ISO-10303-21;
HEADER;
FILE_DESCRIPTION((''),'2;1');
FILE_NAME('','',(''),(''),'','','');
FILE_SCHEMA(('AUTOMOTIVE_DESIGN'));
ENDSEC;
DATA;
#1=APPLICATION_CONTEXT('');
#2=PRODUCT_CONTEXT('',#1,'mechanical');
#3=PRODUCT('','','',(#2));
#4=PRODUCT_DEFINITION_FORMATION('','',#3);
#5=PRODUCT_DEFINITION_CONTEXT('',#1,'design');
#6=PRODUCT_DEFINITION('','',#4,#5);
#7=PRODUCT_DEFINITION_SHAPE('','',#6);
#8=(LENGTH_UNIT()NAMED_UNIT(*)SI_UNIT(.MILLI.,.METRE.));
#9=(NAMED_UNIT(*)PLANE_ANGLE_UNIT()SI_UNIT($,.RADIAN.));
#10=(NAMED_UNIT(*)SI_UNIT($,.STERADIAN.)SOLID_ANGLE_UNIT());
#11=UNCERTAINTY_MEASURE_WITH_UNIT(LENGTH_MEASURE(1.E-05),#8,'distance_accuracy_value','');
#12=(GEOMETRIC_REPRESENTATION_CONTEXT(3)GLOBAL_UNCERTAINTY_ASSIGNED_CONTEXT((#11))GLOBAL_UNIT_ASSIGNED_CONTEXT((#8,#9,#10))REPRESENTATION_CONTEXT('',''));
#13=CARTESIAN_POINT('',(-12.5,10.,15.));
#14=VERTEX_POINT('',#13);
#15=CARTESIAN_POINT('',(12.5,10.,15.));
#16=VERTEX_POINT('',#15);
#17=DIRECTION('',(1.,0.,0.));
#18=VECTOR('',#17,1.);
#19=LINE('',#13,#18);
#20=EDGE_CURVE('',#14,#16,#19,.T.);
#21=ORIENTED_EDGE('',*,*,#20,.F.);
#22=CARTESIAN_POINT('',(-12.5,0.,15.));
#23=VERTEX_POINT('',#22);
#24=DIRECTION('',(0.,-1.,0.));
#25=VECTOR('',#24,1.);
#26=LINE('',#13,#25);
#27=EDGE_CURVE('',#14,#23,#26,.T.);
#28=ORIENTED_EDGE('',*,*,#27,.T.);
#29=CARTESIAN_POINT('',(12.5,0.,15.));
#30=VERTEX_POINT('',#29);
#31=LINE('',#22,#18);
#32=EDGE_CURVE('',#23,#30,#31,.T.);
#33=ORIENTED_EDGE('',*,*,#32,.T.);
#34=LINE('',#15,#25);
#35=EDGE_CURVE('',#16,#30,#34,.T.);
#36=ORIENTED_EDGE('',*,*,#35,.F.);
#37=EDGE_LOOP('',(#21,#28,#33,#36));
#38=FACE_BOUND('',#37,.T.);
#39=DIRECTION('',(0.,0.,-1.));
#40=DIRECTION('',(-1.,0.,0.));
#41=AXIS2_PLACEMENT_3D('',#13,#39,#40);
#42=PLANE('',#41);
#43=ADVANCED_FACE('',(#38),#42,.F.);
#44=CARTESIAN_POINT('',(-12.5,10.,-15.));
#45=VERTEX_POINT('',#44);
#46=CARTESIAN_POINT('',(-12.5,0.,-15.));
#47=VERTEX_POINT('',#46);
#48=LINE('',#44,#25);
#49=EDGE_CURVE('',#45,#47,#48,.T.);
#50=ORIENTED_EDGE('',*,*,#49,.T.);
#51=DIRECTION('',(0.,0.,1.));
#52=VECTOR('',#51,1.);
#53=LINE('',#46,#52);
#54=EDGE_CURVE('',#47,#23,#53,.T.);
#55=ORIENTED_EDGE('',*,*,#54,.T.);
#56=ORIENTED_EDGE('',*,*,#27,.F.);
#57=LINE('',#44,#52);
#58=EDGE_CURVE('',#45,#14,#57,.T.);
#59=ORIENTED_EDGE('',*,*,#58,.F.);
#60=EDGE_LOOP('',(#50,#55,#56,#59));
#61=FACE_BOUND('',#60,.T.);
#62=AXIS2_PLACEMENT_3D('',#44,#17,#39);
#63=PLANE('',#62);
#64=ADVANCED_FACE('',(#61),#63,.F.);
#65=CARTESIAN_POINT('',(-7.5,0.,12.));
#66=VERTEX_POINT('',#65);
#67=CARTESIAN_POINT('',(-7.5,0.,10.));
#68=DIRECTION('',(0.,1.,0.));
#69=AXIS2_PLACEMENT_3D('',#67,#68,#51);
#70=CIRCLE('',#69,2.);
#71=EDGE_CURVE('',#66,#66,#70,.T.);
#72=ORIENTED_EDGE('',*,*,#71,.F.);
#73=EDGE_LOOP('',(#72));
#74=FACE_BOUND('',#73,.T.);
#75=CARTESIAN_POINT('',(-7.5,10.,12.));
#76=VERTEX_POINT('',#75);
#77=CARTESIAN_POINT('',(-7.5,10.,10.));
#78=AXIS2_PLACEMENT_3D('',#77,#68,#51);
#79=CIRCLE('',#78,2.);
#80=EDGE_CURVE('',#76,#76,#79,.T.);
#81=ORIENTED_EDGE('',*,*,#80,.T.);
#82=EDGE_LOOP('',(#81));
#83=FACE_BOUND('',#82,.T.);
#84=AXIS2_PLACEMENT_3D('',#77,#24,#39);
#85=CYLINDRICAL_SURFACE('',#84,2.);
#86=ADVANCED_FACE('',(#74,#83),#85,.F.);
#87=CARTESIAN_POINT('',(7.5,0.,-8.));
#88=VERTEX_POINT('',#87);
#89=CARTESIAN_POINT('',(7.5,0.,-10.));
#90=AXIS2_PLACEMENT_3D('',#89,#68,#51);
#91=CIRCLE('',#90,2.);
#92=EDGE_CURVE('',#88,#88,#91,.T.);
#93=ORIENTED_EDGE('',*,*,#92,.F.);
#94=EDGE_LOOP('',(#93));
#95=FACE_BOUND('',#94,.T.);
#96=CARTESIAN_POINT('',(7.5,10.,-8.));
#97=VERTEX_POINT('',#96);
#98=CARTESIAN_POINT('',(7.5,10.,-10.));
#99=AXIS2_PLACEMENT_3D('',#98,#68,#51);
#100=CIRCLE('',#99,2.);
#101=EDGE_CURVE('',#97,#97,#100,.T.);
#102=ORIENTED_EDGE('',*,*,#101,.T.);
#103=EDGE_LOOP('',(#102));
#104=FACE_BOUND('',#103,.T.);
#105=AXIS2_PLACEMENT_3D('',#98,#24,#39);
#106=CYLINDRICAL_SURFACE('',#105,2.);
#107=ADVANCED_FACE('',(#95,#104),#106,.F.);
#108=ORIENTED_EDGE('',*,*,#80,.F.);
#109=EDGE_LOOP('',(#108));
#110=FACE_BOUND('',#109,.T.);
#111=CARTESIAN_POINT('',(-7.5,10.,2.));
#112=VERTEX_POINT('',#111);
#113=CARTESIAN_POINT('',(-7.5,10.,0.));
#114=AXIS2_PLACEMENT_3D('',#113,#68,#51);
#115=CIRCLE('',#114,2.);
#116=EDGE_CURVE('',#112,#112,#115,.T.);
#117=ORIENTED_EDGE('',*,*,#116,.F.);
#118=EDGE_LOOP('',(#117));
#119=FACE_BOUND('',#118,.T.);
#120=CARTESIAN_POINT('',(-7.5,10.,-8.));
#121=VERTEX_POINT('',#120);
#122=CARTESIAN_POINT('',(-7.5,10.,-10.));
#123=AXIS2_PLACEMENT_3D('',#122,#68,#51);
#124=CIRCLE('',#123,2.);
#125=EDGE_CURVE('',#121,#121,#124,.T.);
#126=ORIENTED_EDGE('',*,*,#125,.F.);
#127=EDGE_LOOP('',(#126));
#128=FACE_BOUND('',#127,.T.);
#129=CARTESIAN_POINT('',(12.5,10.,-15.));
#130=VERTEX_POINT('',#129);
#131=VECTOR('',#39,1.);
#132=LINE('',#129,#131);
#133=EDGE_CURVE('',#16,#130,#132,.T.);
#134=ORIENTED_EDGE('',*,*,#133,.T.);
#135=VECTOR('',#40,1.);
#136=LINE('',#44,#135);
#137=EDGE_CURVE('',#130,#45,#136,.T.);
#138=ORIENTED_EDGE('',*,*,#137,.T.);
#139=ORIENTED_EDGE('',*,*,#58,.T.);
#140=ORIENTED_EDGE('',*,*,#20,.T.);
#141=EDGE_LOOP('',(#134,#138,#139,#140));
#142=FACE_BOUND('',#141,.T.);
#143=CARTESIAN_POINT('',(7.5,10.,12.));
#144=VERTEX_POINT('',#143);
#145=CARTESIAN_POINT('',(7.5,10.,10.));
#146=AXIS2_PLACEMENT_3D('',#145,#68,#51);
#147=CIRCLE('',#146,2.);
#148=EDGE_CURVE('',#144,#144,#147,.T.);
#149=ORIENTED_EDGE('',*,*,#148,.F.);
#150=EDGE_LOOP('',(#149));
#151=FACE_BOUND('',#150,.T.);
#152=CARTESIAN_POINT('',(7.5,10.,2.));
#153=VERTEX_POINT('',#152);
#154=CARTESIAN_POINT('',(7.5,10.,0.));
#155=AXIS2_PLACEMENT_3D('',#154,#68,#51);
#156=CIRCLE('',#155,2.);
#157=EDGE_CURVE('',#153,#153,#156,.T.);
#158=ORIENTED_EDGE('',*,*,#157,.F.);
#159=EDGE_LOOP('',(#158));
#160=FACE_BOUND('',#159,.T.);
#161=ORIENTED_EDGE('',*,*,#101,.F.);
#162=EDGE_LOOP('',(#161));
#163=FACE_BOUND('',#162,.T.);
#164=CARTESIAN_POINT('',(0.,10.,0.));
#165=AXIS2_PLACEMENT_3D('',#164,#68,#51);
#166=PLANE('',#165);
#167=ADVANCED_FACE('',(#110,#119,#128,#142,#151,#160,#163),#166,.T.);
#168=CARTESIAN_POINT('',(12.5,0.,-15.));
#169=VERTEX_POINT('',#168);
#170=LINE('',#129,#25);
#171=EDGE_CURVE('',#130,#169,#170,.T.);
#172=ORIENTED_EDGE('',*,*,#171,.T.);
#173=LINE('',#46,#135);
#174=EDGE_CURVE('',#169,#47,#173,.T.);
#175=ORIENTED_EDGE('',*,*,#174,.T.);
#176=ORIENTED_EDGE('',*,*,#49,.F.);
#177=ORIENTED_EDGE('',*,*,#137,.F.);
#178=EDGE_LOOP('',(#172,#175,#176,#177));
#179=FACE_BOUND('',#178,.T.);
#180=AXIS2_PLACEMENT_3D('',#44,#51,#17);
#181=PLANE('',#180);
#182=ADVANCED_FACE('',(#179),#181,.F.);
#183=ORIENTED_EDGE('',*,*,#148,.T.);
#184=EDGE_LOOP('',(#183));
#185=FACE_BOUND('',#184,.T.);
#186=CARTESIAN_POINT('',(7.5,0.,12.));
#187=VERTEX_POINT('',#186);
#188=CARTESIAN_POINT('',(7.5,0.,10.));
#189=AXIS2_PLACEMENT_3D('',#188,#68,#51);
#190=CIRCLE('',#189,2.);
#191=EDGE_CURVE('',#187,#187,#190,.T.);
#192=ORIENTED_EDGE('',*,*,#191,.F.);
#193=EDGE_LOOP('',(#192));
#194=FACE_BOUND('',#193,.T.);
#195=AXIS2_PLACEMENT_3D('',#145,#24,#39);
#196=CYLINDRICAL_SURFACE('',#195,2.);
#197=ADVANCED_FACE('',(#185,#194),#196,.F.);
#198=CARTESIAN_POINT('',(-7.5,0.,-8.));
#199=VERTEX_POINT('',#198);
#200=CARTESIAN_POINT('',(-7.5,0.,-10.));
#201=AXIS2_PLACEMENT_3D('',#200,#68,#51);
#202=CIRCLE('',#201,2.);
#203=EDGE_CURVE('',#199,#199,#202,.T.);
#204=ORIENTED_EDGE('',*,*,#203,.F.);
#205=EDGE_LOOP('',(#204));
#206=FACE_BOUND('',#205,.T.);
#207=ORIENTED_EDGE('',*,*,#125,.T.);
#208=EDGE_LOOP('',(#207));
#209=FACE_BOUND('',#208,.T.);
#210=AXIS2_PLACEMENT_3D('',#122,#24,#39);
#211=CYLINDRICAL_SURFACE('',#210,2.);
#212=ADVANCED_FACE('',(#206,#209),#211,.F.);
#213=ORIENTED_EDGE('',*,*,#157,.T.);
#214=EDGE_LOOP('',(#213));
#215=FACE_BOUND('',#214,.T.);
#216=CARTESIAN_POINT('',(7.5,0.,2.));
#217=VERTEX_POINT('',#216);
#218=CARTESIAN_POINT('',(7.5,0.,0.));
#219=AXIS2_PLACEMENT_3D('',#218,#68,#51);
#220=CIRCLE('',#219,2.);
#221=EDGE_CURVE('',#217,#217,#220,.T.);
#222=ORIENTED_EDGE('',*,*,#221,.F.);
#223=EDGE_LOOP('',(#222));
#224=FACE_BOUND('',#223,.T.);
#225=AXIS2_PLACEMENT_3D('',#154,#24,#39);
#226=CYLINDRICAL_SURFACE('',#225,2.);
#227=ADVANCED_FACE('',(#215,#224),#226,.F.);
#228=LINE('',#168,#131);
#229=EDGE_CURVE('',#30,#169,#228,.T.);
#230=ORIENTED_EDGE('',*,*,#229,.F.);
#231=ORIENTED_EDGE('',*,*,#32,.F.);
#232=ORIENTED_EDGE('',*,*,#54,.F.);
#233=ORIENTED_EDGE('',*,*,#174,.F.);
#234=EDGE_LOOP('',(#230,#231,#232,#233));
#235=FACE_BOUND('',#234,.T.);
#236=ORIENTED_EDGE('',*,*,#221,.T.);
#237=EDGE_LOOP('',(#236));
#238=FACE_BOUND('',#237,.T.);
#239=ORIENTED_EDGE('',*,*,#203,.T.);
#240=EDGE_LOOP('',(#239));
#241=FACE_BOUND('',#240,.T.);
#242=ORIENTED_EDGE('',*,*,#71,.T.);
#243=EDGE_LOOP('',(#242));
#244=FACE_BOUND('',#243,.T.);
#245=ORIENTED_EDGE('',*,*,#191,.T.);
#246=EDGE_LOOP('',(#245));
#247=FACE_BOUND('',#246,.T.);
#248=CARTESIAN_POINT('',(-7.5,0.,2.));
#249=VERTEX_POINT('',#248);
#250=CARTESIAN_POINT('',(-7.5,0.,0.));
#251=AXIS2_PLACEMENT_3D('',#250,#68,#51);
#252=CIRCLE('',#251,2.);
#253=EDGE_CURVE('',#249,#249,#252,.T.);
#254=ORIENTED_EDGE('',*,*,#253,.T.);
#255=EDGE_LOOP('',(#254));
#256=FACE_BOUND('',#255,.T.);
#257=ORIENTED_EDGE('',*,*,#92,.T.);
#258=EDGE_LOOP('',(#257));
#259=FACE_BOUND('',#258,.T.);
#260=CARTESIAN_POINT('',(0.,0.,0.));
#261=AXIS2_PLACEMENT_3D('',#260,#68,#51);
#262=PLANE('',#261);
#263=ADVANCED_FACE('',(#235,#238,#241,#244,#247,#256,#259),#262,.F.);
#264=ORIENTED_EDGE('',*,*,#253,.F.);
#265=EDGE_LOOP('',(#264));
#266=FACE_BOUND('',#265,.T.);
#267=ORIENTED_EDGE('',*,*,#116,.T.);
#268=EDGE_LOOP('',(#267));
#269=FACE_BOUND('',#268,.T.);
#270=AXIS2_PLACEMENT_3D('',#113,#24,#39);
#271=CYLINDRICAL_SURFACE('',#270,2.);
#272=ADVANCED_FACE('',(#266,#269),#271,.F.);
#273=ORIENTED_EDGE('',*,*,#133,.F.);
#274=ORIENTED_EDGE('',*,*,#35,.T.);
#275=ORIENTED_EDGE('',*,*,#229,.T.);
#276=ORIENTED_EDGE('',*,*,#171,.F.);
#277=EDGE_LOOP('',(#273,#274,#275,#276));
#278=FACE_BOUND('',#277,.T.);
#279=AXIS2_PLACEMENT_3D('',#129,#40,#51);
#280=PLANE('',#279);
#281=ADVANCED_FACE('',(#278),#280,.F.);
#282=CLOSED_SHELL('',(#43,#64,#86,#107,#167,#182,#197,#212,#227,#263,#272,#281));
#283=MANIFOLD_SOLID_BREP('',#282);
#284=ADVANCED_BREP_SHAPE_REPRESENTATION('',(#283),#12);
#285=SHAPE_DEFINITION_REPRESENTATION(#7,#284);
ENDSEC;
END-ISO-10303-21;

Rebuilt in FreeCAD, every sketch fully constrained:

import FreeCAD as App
import Part
import Sketcher

V = App.Vector
Q = App.Units.Quantity

doc = App.newDocument("Part")
body = doc.addObject("PartDesign::Body", "Body")

# Sketch on XZ plane
sketch1 = doc.addObject("Sketcher::SketchObject", "Sketch")
body.addObject(sketch1)
sketch1.AttachmentSupport = (doc.XZ_Plane, [""])
sketch1.MapMode = "FlatFace"
sketch1.addGeometry([
    Part.LineSegment(V(-12.5, -15, 0), V(-12.5, 15, 0)),  # 0
    Part.LineSegment(V(-12.5, 15, 0), V(12.5, 15, 0)),  # 1
    Part.LineSegment(V(12.5, 15, 0), V(12.5, -15, 0)),  # 2
    Part.LineSegment(V(12.5, -15, 0), V(-12.5, -15, 0)),  # 3
    Part.Circle(V(-7.5, 10, 0), V(0, 0, 1), 2),  # 4
    Part.Circle(V(7.5, 10, 0), V(0, 0, 1), 2),  # 5
    Part.Circle(V(-7.5, 0, 0), V(0, 0, 1), 2),  # 6
    Part.Circle(V(-7.5, -10, 0), V(0, 0, 1), 2),  # 7
    Part.Circle(V(7.5, 0, 0), V(0, 0, 1), 2),  # 8
    Part.Circle(V(7.5, -10, 0), V(0, 0, 1), 2),  # 9
], False)
sketch1.addConstraint([
    Sketcher.Constraint("Coincident", 0, 2, 1, 1),
    Sketcher.Constraint("Coincident", 1, 2, 2, 1),
    Sketcher.Constraint("Coincident", 2, 2, 3, 1),
    Sketcher.Constraint("Coincident", 3, 2, 0, 1),
    Sketcher.Constraint("Vertical", 0),
    Sketcher.Constraint("Horizontal", 1),
    Sketcher.Constraint("Vertical", 2),
    Sketcher.Constraint("Horizontal", 3),
    Sketcher.Constraint("Equal", 4, 5),
    Sketcher.Constraint("Equal", 5, 6),
    Sketcher.Constraint("Equal", 6, 7),
    Sketcher.Constraint("Equal", 7, 8),
    Sketcher.Constraint("Equal", 8, 9),
    Sketcher.Constraint("Symmetric", 5, 3, 7, 3, -1, 1),
    Sketcher.Constraint("Symmetric", 6, 3, 8, 3, -1, 1),
    Sketcher.Constraint("Symmetric", 4, 3, 9, 3, -1, 1),
    Sketcher.Constraint("Symmetric", 0, 2, 2, 2, -1, 1),
    Sketcher.Constraint("Symmetric", 4, 3, 5, 3, -2),
    Sketcher.Constraint("PointOnObject", 6, 3, -1),
    Sketcher.Constraint("Vertical", 4, 3, 6, 3),
    Sketcher.Constraint("Diameter", 4, Q("4 mm")),
    Sketcher.Constraint("DistanceX", 1, 1, 1, 2, Q("25 mm")),
    Sketcher.Constraint("DistanceY", 0, 1, 0, 2, Q("30 mm")),
    Sketcher.Constraint("DistanceY", -1, 1, 4, 3, Q("10 mm")),
    Sketcher.Constraint("DistanceX", 4, 3, 5, 3, Q("15 mm")),
])
pad1 = doc.addObject("PartDesign::Pad", "Pad")
body.addObject(pad1)
pad1.Profile = sketch1
pad1.Length = 10
pad1.Reversed = True

doc.recompute()
